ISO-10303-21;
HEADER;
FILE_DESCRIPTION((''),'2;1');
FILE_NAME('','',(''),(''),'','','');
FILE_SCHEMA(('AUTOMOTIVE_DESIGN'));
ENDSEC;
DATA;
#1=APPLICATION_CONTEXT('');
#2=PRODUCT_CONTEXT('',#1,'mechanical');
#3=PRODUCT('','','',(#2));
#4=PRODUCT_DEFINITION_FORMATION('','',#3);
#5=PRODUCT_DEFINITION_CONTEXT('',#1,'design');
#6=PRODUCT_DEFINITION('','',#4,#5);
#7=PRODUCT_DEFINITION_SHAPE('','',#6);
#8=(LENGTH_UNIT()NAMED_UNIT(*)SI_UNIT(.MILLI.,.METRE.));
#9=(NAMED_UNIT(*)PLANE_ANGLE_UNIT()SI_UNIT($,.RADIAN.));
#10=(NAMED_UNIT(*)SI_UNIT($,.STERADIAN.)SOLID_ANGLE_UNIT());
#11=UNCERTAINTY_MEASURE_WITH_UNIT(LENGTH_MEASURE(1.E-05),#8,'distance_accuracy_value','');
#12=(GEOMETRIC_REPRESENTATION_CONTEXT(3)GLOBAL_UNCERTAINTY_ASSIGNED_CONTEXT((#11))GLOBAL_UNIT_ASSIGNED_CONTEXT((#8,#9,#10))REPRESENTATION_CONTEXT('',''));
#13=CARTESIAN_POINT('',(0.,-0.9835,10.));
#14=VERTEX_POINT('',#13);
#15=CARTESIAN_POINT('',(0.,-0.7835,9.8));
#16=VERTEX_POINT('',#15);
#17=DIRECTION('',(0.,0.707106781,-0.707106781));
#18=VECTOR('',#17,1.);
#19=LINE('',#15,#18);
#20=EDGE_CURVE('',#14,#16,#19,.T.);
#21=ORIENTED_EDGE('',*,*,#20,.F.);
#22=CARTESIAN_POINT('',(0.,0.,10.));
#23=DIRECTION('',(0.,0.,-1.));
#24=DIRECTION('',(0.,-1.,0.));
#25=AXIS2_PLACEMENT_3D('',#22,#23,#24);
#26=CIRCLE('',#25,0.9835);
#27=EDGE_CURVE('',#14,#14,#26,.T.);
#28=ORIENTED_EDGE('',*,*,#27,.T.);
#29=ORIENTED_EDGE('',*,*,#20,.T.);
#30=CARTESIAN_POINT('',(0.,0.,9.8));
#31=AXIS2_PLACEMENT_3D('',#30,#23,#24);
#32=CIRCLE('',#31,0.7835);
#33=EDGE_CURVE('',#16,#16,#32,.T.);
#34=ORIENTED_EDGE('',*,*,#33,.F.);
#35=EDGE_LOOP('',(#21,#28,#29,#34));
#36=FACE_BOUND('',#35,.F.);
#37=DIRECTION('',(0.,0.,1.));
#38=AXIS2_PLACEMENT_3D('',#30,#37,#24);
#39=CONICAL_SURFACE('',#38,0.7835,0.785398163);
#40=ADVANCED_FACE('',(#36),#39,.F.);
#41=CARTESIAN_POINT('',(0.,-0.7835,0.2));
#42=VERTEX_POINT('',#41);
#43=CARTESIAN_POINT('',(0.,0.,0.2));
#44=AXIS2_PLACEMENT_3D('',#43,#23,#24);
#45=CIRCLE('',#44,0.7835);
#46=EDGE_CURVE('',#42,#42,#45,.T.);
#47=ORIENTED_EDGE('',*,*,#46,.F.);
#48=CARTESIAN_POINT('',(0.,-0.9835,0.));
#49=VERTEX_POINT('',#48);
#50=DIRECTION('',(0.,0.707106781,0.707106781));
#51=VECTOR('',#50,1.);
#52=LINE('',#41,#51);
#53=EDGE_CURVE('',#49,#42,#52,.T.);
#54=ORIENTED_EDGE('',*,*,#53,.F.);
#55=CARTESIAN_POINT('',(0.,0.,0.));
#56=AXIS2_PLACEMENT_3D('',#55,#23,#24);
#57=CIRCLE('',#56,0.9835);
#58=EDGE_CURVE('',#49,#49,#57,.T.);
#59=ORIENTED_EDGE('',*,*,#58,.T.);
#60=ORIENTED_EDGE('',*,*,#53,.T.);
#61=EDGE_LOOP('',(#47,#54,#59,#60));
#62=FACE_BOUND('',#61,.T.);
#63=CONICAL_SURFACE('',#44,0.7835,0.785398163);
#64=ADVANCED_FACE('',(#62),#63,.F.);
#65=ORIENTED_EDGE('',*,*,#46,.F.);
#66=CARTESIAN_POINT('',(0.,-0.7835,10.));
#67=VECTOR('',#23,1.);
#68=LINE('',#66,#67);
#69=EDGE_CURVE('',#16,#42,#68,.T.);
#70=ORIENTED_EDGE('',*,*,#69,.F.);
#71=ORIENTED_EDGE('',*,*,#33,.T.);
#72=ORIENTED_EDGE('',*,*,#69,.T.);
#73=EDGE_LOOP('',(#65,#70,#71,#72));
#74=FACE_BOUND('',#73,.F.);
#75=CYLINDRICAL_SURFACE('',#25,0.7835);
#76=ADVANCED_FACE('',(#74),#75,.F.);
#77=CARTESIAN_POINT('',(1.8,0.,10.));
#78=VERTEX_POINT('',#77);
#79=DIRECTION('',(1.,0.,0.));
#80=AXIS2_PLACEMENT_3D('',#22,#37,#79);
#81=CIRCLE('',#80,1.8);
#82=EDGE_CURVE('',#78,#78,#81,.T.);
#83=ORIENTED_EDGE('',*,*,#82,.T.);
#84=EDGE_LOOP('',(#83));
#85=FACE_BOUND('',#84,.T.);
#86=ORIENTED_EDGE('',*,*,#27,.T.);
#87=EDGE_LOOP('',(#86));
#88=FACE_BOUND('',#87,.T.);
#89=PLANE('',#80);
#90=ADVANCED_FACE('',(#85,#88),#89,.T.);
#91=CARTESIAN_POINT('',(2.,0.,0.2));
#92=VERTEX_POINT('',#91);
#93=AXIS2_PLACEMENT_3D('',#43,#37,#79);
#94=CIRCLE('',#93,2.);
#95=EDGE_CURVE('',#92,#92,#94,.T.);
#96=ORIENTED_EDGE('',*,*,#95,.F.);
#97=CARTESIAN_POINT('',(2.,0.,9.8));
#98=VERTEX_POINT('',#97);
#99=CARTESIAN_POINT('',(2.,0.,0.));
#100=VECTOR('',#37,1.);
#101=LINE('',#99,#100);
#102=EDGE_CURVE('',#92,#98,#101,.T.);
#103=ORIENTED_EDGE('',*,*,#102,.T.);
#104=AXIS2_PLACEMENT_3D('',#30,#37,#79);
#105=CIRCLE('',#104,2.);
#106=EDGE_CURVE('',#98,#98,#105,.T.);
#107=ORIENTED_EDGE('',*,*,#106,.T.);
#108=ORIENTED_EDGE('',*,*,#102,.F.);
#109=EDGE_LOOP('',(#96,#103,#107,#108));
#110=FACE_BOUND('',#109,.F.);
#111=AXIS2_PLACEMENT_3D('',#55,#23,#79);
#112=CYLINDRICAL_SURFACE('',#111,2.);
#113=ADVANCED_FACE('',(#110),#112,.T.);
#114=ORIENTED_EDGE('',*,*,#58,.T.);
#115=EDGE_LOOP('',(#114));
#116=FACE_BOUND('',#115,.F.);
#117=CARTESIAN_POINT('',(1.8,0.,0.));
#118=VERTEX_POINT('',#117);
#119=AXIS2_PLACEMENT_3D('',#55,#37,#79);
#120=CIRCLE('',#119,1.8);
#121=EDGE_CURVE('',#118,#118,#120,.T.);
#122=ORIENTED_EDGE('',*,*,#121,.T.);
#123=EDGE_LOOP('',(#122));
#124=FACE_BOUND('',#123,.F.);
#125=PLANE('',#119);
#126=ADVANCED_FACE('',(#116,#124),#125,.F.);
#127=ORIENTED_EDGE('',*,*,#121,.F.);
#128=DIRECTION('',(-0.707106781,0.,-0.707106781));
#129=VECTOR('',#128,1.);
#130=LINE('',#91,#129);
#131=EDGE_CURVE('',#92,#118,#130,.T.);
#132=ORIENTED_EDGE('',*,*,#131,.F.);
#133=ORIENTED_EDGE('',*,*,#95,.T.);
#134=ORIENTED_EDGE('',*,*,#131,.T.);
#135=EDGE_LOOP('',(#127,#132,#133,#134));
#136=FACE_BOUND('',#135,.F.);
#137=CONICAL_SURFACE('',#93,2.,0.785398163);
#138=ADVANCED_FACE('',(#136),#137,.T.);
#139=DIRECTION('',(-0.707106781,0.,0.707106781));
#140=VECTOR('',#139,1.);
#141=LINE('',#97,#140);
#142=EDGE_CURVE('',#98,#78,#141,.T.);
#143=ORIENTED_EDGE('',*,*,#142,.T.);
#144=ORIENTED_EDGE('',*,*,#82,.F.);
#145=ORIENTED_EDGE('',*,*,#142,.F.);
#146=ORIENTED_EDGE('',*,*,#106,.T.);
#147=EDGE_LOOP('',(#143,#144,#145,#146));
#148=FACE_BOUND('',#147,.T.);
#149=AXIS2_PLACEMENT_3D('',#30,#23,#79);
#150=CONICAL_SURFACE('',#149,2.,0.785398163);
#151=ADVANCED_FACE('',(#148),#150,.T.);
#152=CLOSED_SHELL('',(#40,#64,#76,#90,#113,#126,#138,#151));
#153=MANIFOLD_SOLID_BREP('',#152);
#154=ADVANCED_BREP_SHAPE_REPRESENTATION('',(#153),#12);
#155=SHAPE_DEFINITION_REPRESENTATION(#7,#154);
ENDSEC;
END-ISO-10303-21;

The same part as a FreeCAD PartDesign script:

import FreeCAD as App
import Part
import Sketcher

V = App.Vector


def edges_at(feature, points):
    """Names of the edges that pass closest to the given points."""
    edges = feature.Shape.Edges
    near = lambda p: min(range(len(edges)), key=lambda i: edges[i].distToShape(Part.Vertex(*p))[0])
    return sorted({f"Edge{near(p) + 1}" for p in points})

doc = App.newDocument("Part")
body = doc.addObject("PartDesign::Body", "Body")

sketch1 = body.newObject("Sketcher::SketchObject", "Sketch")
sketch1.AttachmentSupport = (doc.getObject("XY_Plane"), [""])
sketch1.MapMode = "FlatFace"
sketch1.addGeometry(Part.Circle(V(0, 0, 0), V(0, 0, 1), 2), False)
sketch1.addConstraint([
    Sketcher.Constraint("Coincident", 0, 3, -1, 1),
    Sketcher.Constraint("Diameter", 0, 4.0),
])
pad1 = body.newObject("PartDesign::Pad", "Pad")
pad1.Profile = sketch1
pad1.Length = 10

sketch2 = body.newObject("Sketcher::SketchObject", "Sketch001")
sketch2.AttachmentSupport = (doc.getObject("XY_Plane"), [""])
sketch2.MapMode = "FlatFace"
sketch2.AttachmentOffset = App.Placement(V(0, 0, 10), App.Rotation())
sketch2.addGeometry(Part.Circle(V(0, 0, 0), V(0, 0, 1), 0.8), False)
sketch2.addConstraint([
    Sketcher.Constraint("Coincident", 0, 3, -1, 1),
    Sketcher.Constraint("Diameter", 0, 1.567),
])
doc.recompute()
hole = body.newObject("PartDesign::Hole", "Hole")
hole.Profile = sketch2
hole.ThreadType = "None"
hole.Diameter = 1.567
hole.DepthType = "ThroughAll"
doc.recompute()

chamfer = body.newObject("PartDesign::Chamfer", "Chamfer")
chamfer.Base = (hole, edges_at(hole, [
    (0, 0.783, 10),
    (0, 0.783, 0),
    (-2, 0, 10),
    (-2, 0, 0),
]))
chamfer.Size = 0.2

doc.recompute()
